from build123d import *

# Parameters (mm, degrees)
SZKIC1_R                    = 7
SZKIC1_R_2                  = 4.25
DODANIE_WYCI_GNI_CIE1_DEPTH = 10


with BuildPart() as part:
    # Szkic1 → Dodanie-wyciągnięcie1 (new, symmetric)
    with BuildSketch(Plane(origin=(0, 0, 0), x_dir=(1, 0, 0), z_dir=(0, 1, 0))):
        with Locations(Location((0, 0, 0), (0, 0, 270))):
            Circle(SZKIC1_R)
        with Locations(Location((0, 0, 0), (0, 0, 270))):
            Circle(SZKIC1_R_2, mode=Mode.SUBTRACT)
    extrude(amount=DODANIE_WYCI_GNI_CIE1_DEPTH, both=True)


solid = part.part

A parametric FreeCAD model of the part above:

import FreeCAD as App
import Part
import Sketcher

V = App.Vector

doc = App.newDocument("Part")
body = doc.addObject("PartDesign::Body", "Body")

# Sketch on XZ plane
sketch1 = body.newObject("Sketcher::SketchObject", "Sketch")
sketch1.AttachmentSupport = (doc.getObject("XZ_Plane"), [""])
sketch1.MapMode = "FlatFace"
sketch1.addGeometry([
    Part.Circle(V(0, 0, 0), V(0, 0, 1), 7),
    Part.Circle(V(0, 0, 0), V(0, 0, 1), 4.25),
], False)
sketch1.addConstraint([
    Sketcher.Constraint("Coincident", 0, 3, -1, 1),
    Sketcher.Constraint("Coincident", 1, 3, -1, 1),
    Sketcher.Constraint("Diameter", 0, 14.0),
    Sketcher.Constraint("Diameter", 1, 8.5),
])
pad1 = body.newObject("PartDesign::Pad", "Pad")
pad1.Profile = sketch1
pad1.Length = 20
pad1.Midplane = True

doc.recompute()
